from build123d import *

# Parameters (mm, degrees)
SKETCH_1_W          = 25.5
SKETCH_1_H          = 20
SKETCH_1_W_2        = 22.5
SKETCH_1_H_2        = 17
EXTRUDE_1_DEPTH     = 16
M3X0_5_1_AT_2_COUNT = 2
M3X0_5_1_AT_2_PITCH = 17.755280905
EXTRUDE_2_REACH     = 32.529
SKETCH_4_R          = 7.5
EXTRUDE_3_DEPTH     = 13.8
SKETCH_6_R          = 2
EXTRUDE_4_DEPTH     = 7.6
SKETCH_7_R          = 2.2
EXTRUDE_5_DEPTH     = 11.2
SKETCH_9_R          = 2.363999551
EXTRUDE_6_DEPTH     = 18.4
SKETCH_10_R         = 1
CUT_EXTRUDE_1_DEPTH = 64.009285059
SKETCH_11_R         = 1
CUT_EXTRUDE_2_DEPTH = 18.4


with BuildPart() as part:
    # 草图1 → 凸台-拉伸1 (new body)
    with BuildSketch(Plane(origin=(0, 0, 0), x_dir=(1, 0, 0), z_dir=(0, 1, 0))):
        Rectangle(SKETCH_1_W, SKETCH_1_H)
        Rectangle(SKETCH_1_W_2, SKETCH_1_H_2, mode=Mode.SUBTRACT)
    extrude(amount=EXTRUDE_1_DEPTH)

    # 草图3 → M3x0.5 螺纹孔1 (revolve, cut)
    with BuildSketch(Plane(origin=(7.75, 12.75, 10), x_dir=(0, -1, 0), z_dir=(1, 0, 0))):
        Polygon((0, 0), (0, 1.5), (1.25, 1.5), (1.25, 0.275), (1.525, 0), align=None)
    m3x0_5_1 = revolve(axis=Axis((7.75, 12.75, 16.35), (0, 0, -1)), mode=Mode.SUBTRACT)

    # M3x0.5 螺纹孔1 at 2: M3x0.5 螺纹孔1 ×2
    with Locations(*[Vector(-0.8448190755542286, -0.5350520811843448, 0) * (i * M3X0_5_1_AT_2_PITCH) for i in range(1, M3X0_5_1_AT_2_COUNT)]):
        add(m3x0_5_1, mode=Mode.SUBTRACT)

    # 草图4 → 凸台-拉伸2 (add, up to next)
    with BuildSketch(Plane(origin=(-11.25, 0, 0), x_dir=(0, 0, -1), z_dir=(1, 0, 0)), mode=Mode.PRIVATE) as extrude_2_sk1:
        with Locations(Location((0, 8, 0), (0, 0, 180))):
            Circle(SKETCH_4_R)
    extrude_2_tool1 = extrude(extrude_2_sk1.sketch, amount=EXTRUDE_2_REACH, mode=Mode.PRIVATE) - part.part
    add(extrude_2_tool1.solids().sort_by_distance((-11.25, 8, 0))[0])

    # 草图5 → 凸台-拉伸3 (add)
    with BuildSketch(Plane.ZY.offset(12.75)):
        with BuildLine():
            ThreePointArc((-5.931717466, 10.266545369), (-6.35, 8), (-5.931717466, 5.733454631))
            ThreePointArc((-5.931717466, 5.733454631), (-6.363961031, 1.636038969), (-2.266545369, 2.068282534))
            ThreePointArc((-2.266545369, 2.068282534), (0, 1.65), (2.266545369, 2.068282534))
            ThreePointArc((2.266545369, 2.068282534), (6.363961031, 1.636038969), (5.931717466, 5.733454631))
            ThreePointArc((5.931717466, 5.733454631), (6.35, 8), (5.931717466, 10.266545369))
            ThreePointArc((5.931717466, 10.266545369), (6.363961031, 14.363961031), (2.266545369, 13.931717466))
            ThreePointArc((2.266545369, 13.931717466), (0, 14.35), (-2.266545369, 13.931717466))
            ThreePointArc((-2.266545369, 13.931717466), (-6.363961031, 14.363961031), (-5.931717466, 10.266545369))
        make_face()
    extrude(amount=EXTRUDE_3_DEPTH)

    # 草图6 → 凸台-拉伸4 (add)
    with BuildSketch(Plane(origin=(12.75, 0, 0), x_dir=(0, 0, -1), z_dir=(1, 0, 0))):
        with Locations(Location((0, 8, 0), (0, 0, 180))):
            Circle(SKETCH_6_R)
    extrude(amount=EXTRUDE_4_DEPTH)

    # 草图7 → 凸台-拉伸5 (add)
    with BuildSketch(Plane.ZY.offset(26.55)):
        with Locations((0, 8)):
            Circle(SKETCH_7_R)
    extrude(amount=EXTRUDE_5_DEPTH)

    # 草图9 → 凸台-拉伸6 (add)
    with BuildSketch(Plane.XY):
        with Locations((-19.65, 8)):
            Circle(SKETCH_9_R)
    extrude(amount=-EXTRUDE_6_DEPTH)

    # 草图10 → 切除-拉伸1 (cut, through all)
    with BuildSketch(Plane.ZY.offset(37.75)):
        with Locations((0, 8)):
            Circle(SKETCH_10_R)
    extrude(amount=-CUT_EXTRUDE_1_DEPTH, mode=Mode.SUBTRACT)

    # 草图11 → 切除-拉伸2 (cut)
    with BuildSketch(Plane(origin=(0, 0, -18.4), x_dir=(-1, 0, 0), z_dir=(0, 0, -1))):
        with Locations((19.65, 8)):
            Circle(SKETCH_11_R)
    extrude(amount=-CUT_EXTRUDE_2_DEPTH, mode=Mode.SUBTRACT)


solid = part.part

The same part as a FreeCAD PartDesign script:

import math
import FreeCAD as App
import Part
import Sketcher
Q = App.Units.Quantity

doc = App.newDocument("Part")
body = doc.addObject("PartDesign::Body", "Body")

# Sketch on XZ plane
sketch1 = body.newObject("Sketcher::SketchObject", "Sketch")
sketch1.AttachmentSupport = (doc.getObject("XZ_Plane"), [""])
sketch1.MapMode = "FlatFace"
sketch1.addGeometry(Part.LineSegment(App.Vector(-13, -10, 0), App.Vector(-13, 10, 0)), False)
sketch1.addGeometry(Part.LineSegment(App.Vector(-13, 10, 0), App.Vector(13, 10, 0)), False)
sketch1.addGeometry(Part.LineSegment(App.Vector(13, 10, 0), App.Vector(13, -10, 0)), False)
sketch1.addGeometry(Part.LineSegment(App.Vector(13, -10, 0), App.Vector(-13, -10, 0)), False)
sketch1.addGeometry(Part.LineSegment(App.Vector(11, 8, 0), App.Vector(-11, 8, 0)), False)
sketch1.addGeometry(Part.LineSegment(App.Vector(-11, 8, 0), App.Vector(-11, -8, 0)), False)
sketch1.addGeometry(Part.LineSegment(App.Vector(-11, -8, 0), App.Vector(11, -8, 0)), False)
sketch1.addGeometry(Part.LineSegment(App.Vector(11, -8, 0), App.Vector(11, 8, 0)), False)
sketch1.addConstraint(Sketcher.Constraint("Coincident", 0, 2, 1, 1))
sketch1.addConstraint(Sketcher.Constraint("Coincident", 1, 2, 2, 1))
sketch1.addConstraint(Sketcher.Constraint("Coincident", 2, 2, 3, 1))
sketch1.addConstraint(Sketcher.Constraint("Coincident", 3, 2, 0, 1))
sketch1.addConstraint(Sketcher.Constraint("Coincident", 4, 2, 5, 1))
sketch1.addConstraint(Sketcher.Constraint("Coincident", 5, 2, 6, 1))
sketch1.addConstraint(Sketcher.Constraint("Coincident", 6, 2, 7, 1))
sketch1.addConstraint(Sketcher.Constraint("Coincident", 7, 2, 4, 1))
sketch1.addConstraint(Sketcher.Constraint("Vertical", 0))
sketch1.addConstraint(Sketcher.Constraint("Horizontal", 1))
sketch1.addConstraint(Sketcher.Constraint("Vertical", 2))
sketch1.addConstraint(Sketcher.Constraint("Horizontal", 3))
sketch1.addConstraint(Sketcher.Constraint("Horizontal", 4))
sketch1.addConstraint(Sketcher.Constraint("Vertical", 5))
sketch1.addConstraint(Sketcher.Constraint("Horizontal", 6))
sketch1.addConstraint(Sketcher.Constraint("Vertical", 7))
sketch1.addConstraint(Sketcher.Constraint("Symmetric", 0, 2, 2, 2, -1, 1))
sketch1.addConstraint(Sketcher.Constraint("Symmetric", 4, 2, 6, 2, -1, 1))
sketch1.addConstraint(Sketcher.Constraint("DistanceY", 0, 1, 0, 2, Q("20 mm")))
sketch1.addConstraint(Sketcher.Constraint("DistanceY", 5, 2, 5, 1, Q("17 mm")))
sketch1.addConstraint(Sketcher.Constraint("DistanceX", 1, 1, 1, 2, Q("25.5 mm")))
sketch1.addConstraint(Sketcher.Constraint("DistanceX", 4, 2, 4, 1, Q("22.5 mm")))
pad1 = body.newObject("PartDesign::Pad", "Pad")
pad1.Profile = sketch1
pad1.Length = 16
pad1.Reversed = True

# Sketch on YZ plane
sketch2 = body.newObject("Sketcher::SketchObject", "Sketch001")
sketch2.AttachmentSupport = (doc.getObject("YZ_Plane"), [""])
sketch2.MapMode = "FlatFace"
sketch2.AttachmentOffset = App.Placement(App.Vector(0, 0, 7.75), App.Rotation())
sketch2.addGeometry(Part.LineSegment(App.Vector(12.75, 8.5, 0), App.Vector(12.75, 10, 0)), False)
sketch2.addGeometry(Part.LineSegment(App.Vector(12.75, 10, 0), App.Vector(11.22, 10, 0)), False)
sketch2.addGeometry(Part.LineSegment(App.Vector(11.22, 10, 0), App.Vector(11.5, 9.72, 0)), False)
sketch2.addGeometry(Part.LineSegment(App.Vector(11.5, 9.72, 0), App.Vector(11.5, 8.5, 0)), False)
sketch2.addGeometry(Part.LineSegment(App.Vector(11.5, 8.5, 0), App.Vector(12.75, 8.5, 0)), False)
sketch2.addGeometry(Part.LineSegment(App.Vector(12.75, 10, 0), App.Vector(12.75, 8.5, 0)), True)  # axis
sketch2.addConstraint(Sketcher.Constraint("Coincident", 0, 2, 1, 1))
sketch2.addConstraint(Sketcher.Constraint("Coincident", 1, 2, 2, 1))
sketch2.addConstraint(Sketcher.Constraint("Coincident", 2, 2, 3, 1))
sketch2.addConstraint(Sketcher.Constraint("Coincident", 3, 2, 4, 1))
sketch2.addConstraint(Sketcher.Constraint("Coincident", 4, 2, 0, 1))
sketch2.addConstraint(Sketcher.Constraint("Vertical", 0))
sketch2.addConstraint(Sketcher.Constraint("Horizontal", 1))
sketch2.addConstraint(Sketcher.Constraint("Vertical", 3))
sketch2.addConstraint(Sketcher.Constraint("Horizontal", 4))
sketch2.addConstraint(Sketcher.Constraint("Vertical", 5))
sketch2.addConstraint(Sketcher.Constraint("Coincident", 5, 1, 0, 2))
sketch2.addConstraint(Sketcher.Constraint("Horizontal", 3, 2, 5, 2))
sketch2.addConstraint(Sketcher.Constraint("Angle", 2, Q("-45 deg")))
sketch2.addConstraint(Sketcher.Constraint("DistanceY", 0, 1, 0, 2, Q("1.5 mm")))
sketch2.addConstraint(Sketcher.Constraint("DistanceY", -1, 1, 0, 2, Q("10 mm")))
sketch2.addConstraint(Sketcher.Constraint("DistanceX", 4, 1, 4, 2, Q("1.25 mm")))
sketch2.addConstraint(Sketcher.Constraint("DistanceX", -1, 1, 2, 2, Q("11.5 mm")))
sketch2.addConstraint(Sketcher.Constraint("DistanceX", 1, 2, 1, 1, Q("1.525 mm")))
groove = body.newObject("PartDesign::Groove", "Groove")
groove.Profile = sketch2
groove.ReferenceAxis = (sketch2, ["Axis0"])
groove.Angle = 360
doc.recompute()

datumline = body.newObject("PartDesign::Line", "DatumLine")
datumline.Placement = App.Placement(App.Vector(0, 0, 0), App.Rotation(App.Vector(0, 0, 1), App.Vector(-0.844819076, -0.535052081, 0)))
linearpattern = body.newObject("PartDesign::LinearPattern", "LinearPattern")
linearpattern.Originals = [groove]
linearpattern.Direction = (datumline, [""])
linearpattern.Mode = "offset"
linearpattern.Offset = 17.755281
linearpattern.Occurrences = 2
body.Tip = linearpattern

# Sketch on YZ plane
sketch3 = body.newObject("Sketcher::SketchObject", "Sketch002")
sketch3.AttachmentSupport = (doc.getObject("YZ_Plane"), [""])
sketch3.MapMode = "FlatFace"
sketch3.AttachmentOffset = App.Placement(App.Vector(0, 0, -11.25), App.Rotation())
sketch3.addGeometry(Part.Circle(App.Vector(8, 0, 0), App.Vector(0, 0, 1), 8), False)
sketch3.addConstraint(Sketcher.Constraint("PointOnObject", 0, 3, -1))
sketch3.addConstraint(Sketcher.Constraint("Diameter", 0, Q("15 mm")))
sketch3.addConstraint(Sketcher.Constraint("DistanceX", -1, 1, 0, 3, Q("8 mm")))
pad2 = body.newObject("PartDesign::Pad", "Pad001")
pad2.Profile = sketch3
pad2.Type = "UpToFirst"

# Sketch on YZ plane
sketch4 = body.newObject("Sketcher::SketchObject", "Sketch003")
sketch4.AttachmentSupport = (doc.getObject("YZ_Plane"), [""])
sketch4.MapMode = "FlatFace"
sketch4.AttachmentOffset = App.Placement(App.Vector(0, 0, -12.75), App.Rotation())
sketch4.addGeometry(Part.ArcOfCircle(Part.Circle(App.Vector(8, 0, 0), App.Vector(0, 0, 1), 6.4), math.radians(-111), math.radians(-69)), False)
sketch4.addGeometry(Part.ArcOfCircle(Part.Circle(App.Vector(3.5, -4.5, 0), App.Vector(0, 0, 1), 2.6), math.radians(123), math.radians(327)), False)
sketch4.addGeometry(Part.ArcOfCircle(Part.Circle(App.Vector(8, 0, 0), App.Vector(0, 0, 1), 6.4), math.radians(159), math.radians(201)), False)
sketch4.addGeometry(Part.ArcOfCircle(Part.Circle(App.Vector(3.5, 4.5, 0), App.Vector(0, 0, 1), 2.6), math.radians(33), math.radians(237)), False)
sketch4.addGeometry(Part.ArcOfCircle(Part.Circle(App.Vector(8, 0, 0), App.Vector(0, 0, 1), 6.4), math.radians(69), math.radians(111)), False)
sketch4.addGeometry(Part.ArcOfCircle(Part.Circle(App.Vector(12.5, 4.5, 0), App.Vector(0, 0, 1), 2.6), math.radians(-57), math.radians(147)), False)
sketch4.addGeometry(Part.ArcOfCircle(Part.Circle(App.Vector(8, 0, 0), App.Vector(0, 0, 1), 6.4), math.radians(-21), math.radians(21)), False)
sketch4.addGeometry(Part.ArcOfCircle(Part.Circle(App.Vector(12.5, -4.5, 0), App.Vector(0, 0, 1), 2.6), math.radians(-147), math.radians(57)), False)
sketch4.addConstraint(Sketcher.Constraint("Coincident", 0, 1, 1, 2))
sketch4.addConstraint(Sketcher.Constraint("Coincident", 1, 1, 2, 2))
sketch4.addConstraint(Sketcher.Constraint("Coincident", 2, 1, 3, 2))
sketch4.addConstraint(Sketcher.Constraint("Coincident", 3, 1, 4, 2))
sketch4.addConstraint(Sketcher.Constraint("Coincident", 4, 1, 5, 2))
sketch4.addConstraint(Sketcher.Constraint("Coincident", 5, 1, 6, 2))
sketch4.addConstraint(Sketcher.Constraint("Coincident", 6, 1, 7, 2))
sketch4.addConstraint(Sketcher.Constraint("Coincident", 7, 1, 0, 2))
sketch4.addConstraint(Sketcher.Constraint("Coincident", 2, 3, 0, 3))
sketch4.addConstraint(Sketcher.Constraint("Coincident", 4, 3, 0, 3))
sketch4.addConstraint(Sketcher.Constraint("Coincident", 6, 3, 0, 3))
sketch4.addConstraint(Sketcher.Constraint("Equal", 0, 2))
sketch4.addConstraint(Sketcher.Constraint("Equal", 1, 3))
sketch4.addConstraint(Sketcher.Constraint("Equal", 2, 4))
sketch4.addConstraint(Sketcher.Constraint("Equal", 3, 5))
sketch4.addConstraint(Sketcher.Constraint("Equal", 4, 6))
sketch4.addConstraint(Sketcher.Constraint("Equal", 5, 7))
sketch4.addConstraint(Sketcher.Constraint("Symmetric", 1, 3, 3, 3, -1))
sketch4.addConstraint(Sketcher.Constraint("Symmetric", 5, 3, 7, 3, -1))
sketch4.addConstraint(Sketcher.Constraint("PointOnObject", 0, 3, -1))
sketch4.addConstraint(Sketcher.Constraint("Horizontal", 3, 3, 5, 3))
sketch4.addConstraint(Sketcher.Constraint("Horizontal", 3, 1, 4, 1))
sketch4.addConstraint(Sketcher.Constraint("Radius", 0, Q("6.35 mm")))
sketch4.addConstraint(Sketcher.Constraint("Radius", 1, Q("2.65 mm")))
sketch4.addConstraint(Sketcher.Constraint("DistanceX", -1, 1, 0, 3, Q("8 mm")))
sketch4.addConstraint(Sketcher.Constraint("DistanceX", -1, 1, 1, 3, Q("3.509872 mm")))
sketch4.addConstraint(Sketcher.Constraint("DistanceY", 1, 3, -1, 1, Q("4.490128 mm")))
pad3 = body.newObject("PartDesign::Pad", "Pad002")
pad3.Profile = sketch4
pad3.Length = 13.8
pad3.Reversed = True

# Sketch on YZ plane
sketch5 = body.newObject("Sketcher::SketchObject", "Sketch004")
sketch5.AttachmentSupport = (doc.getObject("YZ_Plane"), [""])
sketch5.MapMode = "FlatFace"
sketch5.AttachmentOffset = App.Placement(App.Vector(0, 0, 12.75), App.Rotation())
sketch5.addGeometry(Part.Circle(App.Vector(8, 0, 0), App.Vector(0, 0, 1), 2), False)
sketch5.addConstraint(Sketcher.Constraint("PointOnObject", 0, 3, -1))
sketch5.addConstraint(Sketcher.Constraint("Diameter", 0, Q("4 mm")))
sketch5.addConstraint(Sketcher.Constraint("DistanceX", -1, 1, 0, 3, Q("8 mm")))
pad4 = body.newObject("PartDesign::Pad", "Pad003")
pad4.Profile = sketch5
pad4.Length = 7.6

# Sketch on YZ plane
sketch6 = body.newObject("Sketcher::SketchObject", "Sketch005")
sketch6.AttachmentSupport = (doc.getObject("YZ_Plane"), [""])
sketch6.MapMode = "FlatFace"
sketch6.AttachmentOffset = App.Placement(App.Vector(0, 0, -26.55), App.Rotation())
sketch6.addGeometry(Part.Circle(App.Vector(8, 0, 0), App.Vector(0, 0, 1), 2.2), False)
sketch6.addConstraint(Sketcher.Constraint("PointOnObject", 0, 3, -1))
sketch6.addConstraint(Sketcher.Constraint("Diameter", 0, Q("4.4 mm")))
sketch6.addConstraint(Sketcher.Constraint("DistanceX", -1, 1, 0, 3, Q("8 mm")))
pad5 = body.newObject("PartDesign::Pad", "Pad004")
pad5.Profile = sketch6
pad5.Length = 11.2
pad5.Reversed = True

# Sketch on XY plane
sketch7 = body.newObject("Sketcher::SketchObject", "Sketch006")
sketch7.AttachmentSupport = (doc.getObject("XY_Plane"), [""])
sketch7.MapMode = "FlatFace"
sketch7.addGeometry(Part.Circle(App.Vector(-19.6, 8, 0), App.Vector(0, 0, 1), 2.4), False)
sketch7.addConstraint(Sketcher.Constraint("Diameter", 0, Q("4.727999 mm")))
sketch7.addConstraint(Sketcher.Constraint("DistanceY", -1, 1, 0, 3, Q("8 mm")))
sketch7.addConstraint(Sketcher.Constraint("DistanceX", 0, 3, -1, 1, Q("19.65 mm")))
pad6 = body.newObject("PartDesign::Pad", "Pad005")
pad6.Profile = sketch7
pad6.Length = 18.4
pad6.Reversed = True

# Sketch on YZ plane
sketch8 = body.newObject("Sketcher::SketchObject", "Sketch007")
sketch8.AttachmentSupport = (doc.getObject("YZ_Plane"), [""])
sketch8.MapMode = "FlatFace"
sketch8.AttachmentOffset = App.Placement(App.Vector(0, 0, -37.75), App.Rotation())
sketch8.addGeometry(Part.Circle(App.Vector(8, 0, 0), App.Vector(0, 0, 1), 1), False)
sketch8.addConstraint(Sketcher.Constraint("PointOnObject", 0, 3, -1))
sketch8.addConstraint(Sketcher.Constraint("Diameter", 0, Q("2 mm")))
sketch8.addConstraint(Sketcher.Constraint("DistanceX", -1, 1, 0, 3, Q("8 mm")))
pocket1 = body.newObject("PartDesign::Pocket", "Pocket")
pocket1.Profile = sketch8
pocket1.Type = "ThroughAll"
pocket1.Reversed = True

# Sketch on XY plane
sketch9 = body.newObject("Sketcher::SketchObject", "Sketch008")
sketch9.AttachmentSupport = (doc.getObject("XY_Plane"), [""])
sketch9.MapMode = "FlatFace"
sketch9.AttachmentOffset = App.Placement(App.Vector(0, 0, -18.4), App.Rotation())
sketch9.addGeometry(Part.Circle(App.Vector(-19.6, 8, 0), App.Vector(0, 0, 1), 1), False)
sketch9.addConstraint(Sketcher.Constraint("Diameter", 0, Q("2 mm")))
sketch9.addConstraint(Sketcher.Constraint("DistanceY", -1, 1, 0, 3, Q("8 mm")))
sketch9.addConstraint(Sketcher.Constraint("DistanceX", 0, 3, -1, 1, Q("19.65 mm")))
pocket2 = body.newObject("PartDesign::Pocket", "Pocket001")
pocket2.Profile = sketch9
pocket2.Length = 18.4
pocket2.Reversed = True

doc.recompute()
